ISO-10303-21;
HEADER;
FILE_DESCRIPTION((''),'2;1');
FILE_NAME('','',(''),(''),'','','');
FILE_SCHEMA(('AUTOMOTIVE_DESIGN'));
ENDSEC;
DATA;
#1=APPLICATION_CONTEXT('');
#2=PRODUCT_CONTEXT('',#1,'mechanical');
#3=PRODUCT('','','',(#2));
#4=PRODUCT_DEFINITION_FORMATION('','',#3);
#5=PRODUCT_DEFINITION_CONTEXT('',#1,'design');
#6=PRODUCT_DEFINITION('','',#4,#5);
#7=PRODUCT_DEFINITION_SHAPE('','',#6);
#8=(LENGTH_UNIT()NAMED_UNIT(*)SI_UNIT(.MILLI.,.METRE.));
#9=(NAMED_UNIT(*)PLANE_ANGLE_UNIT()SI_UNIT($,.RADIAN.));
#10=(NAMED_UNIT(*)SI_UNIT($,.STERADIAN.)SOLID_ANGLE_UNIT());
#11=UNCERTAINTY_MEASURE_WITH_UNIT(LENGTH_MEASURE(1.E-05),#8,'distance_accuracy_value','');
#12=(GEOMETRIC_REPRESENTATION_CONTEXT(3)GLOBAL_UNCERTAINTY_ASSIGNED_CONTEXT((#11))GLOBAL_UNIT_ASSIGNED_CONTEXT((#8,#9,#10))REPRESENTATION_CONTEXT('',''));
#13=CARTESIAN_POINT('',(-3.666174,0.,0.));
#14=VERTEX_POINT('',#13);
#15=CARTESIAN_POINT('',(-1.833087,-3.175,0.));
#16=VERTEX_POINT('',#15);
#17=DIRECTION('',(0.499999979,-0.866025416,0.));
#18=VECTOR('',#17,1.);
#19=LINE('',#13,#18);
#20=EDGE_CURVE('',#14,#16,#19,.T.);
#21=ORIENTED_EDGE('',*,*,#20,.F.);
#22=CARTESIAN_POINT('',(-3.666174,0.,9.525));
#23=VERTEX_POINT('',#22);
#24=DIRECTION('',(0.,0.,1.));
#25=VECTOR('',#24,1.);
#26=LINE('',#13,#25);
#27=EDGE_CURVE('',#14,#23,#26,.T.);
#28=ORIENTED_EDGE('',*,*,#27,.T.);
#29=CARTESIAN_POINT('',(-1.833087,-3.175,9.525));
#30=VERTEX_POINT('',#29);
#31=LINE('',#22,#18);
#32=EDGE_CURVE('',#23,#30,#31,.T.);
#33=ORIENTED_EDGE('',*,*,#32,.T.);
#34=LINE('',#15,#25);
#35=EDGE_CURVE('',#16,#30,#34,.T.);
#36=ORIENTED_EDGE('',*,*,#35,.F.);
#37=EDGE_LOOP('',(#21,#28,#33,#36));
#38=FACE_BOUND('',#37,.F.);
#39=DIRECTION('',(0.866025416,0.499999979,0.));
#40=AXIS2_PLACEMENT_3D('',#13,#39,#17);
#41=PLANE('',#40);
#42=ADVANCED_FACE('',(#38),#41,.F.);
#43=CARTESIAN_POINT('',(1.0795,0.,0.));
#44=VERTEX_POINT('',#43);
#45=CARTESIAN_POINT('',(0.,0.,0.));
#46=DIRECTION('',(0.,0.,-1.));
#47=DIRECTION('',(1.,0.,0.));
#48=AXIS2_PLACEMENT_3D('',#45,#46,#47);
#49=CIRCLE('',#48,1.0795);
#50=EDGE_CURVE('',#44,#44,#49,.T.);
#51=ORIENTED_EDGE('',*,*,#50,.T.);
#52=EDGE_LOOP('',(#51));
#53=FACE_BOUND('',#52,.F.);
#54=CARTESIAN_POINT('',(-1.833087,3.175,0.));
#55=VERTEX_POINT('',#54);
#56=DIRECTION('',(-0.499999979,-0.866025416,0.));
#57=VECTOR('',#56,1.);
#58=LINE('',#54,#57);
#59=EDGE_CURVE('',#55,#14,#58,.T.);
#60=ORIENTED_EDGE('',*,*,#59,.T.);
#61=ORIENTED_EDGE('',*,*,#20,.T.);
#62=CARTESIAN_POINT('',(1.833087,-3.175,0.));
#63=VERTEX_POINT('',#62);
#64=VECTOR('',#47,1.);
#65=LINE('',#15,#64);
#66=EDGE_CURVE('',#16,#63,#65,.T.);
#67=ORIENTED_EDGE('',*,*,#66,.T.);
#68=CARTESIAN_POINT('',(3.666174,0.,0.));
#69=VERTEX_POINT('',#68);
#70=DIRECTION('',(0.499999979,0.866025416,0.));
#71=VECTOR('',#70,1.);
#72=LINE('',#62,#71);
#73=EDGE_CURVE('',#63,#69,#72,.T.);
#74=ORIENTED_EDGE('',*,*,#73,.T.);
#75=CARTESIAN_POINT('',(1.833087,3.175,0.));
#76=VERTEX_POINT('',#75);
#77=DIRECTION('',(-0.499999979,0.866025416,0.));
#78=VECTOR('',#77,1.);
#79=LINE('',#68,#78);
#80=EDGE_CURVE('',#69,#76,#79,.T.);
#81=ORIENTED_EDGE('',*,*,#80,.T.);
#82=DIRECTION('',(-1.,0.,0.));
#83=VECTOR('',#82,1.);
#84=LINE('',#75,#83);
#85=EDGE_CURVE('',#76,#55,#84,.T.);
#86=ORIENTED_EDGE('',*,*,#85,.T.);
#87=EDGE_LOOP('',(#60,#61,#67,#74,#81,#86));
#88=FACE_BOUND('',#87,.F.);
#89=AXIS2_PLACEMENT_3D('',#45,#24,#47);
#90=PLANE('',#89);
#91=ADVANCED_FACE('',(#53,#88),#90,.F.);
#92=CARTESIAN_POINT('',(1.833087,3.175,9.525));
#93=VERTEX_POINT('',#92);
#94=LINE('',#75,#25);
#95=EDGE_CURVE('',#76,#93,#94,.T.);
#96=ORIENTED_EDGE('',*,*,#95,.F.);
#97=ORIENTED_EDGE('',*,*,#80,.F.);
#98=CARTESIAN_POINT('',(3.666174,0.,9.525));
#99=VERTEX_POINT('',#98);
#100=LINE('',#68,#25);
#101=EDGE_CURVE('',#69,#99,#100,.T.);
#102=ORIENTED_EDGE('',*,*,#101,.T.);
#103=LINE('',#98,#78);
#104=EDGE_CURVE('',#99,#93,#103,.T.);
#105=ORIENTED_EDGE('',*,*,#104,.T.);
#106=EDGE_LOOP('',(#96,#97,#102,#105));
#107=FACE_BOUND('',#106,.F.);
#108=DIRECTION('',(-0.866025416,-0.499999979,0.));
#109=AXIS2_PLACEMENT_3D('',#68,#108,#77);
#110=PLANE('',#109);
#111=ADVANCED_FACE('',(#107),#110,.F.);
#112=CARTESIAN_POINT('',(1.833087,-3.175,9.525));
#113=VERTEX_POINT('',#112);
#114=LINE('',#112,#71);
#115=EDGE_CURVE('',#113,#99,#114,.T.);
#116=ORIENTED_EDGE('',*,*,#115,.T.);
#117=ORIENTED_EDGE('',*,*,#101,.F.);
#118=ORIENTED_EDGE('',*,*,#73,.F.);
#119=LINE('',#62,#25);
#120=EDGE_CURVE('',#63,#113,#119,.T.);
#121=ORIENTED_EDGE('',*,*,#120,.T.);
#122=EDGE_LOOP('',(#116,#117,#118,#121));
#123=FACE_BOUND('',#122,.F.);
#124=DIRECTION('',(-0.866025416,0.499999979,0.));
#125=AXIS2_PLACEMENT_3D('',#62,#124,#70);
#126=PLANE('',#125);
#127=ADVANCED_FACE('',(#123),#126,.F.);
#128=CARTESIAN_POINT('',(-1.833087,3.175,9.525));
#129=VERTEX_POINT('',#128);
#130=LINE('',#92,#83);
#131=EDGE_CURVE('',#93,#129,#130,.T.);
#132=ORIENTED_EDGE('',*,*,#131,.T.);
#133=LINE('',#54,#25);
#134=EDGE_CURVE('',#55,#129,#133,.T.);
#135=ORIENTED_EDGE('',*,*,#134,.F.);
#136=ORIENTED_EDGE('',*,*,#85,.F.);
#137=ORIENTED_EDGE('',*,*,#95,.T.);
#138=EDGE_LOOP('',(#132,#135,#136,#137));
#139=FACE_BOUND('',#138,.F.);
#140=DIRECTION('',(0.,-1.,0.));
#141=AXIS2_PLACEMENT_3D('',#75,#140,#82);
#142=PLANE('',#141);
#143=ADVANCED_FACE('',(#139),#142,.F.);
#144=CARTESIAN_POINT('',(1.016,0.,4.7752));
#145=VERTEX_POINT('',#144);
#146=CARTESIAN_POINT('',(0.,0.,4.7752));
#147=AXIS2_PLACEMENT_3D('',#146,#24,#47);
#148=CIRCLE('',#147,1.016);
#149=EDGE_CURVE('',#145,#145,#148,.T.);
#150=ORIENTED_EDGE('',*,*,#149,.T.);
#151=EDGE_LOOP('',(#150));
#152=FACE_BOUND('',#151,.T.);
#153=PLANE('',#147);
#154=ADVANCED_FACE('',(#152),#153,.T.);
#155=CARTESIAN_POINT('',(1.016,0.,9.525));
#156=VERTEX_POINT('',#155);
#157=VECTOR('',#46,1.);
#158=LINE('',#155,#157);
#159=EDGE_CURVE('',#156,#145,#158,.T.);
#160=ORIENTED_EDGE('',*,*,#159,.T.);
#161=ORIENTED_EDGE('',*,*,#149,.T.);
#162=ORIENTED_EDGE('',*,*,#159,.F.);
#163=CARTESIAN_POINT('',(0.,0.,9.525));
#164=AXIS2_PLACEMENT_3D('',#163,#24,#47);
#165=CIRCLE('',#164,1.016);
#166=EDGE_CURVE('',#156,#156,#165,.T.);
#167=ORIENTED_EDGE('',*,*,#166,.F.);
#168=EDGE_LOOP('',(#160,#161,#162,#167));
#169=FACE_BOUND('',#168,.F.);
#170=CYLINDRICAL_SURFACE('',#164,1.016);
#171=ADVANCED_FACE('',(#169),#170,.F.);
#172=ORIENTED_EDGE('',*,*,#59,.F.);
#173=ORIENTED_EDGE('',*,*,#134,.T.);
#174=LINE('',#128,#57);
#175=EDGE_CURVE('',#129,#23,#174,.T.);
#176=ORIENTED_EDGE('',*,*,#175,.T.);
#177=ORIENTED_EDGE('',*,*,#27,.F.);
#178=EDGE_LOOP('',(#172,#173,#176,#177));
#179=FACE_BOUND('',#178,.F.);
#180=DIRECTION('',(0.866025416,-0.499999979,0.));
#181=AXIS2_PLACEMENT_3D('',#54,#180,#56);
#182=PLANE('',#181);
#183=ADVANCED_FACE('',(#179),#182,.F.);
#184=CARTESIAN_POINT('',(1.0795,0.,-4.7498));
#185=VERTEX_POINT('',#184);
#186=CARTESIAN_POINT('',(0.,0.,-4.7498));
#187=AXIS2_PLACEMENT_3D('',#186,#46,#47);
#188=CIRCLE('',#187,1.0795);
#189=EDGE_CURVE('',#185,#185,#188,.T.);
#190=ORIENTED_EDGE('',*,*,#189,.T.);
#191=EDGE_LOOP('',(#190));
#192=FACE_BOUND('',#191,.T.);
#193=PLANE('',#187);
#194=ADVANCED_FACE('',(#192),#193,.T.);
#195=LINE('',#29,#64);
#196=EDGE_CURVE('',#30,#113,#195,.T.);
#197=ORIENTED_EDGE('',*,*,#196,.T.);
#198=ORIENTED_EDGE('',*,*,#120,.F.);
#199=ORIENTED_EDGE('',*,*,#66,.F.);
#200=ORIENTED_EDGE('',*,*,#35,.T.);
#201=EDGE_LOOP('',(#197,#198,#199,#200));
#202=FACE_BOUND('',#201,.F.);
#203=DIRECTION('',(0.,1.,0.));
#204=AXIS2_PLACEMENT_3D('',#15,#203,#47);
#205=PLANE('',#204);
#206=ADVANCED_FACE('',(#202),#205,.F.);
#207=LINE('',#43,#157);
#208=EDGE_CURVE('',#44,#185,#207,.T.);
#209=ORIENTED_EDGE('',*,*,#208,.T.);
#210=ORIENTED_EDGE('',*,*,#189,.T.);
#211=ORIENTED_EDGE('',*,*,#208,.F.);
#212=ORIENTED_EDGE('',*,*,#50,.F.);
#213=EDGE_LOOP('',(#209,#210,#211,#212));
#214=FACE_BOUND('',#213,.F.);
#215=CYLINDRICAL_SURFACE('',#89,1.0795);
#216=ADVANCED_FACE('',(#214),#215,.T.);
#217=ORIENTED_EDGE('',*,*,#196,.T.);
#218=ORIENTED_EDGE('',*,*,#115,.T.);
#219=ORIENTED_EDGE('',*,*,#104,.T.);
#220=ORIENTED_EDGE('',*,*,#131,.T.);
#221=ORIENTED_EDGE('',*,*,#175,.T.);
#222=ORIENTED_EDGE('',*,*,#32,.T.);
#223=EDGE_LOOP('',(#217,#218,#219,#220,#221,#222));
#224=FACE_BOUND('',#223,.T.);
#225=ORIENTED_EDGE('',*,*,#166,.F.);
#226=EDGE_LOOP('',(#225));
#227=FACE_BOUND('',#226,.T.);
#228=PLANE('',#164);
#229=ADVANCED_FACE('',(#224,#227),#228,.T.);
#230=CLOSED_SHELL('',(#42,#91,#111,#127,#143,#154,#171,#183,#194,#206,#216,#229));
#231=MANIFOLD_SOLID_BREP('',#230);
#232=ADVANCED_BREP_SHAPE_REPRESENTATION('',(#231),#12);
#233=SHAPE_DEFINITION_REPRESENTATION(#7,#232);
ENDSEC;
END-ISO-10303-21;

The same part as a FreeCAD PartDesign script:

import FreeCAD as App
import Part
import Sketcher
from FreeCAD import Vector
Q = App.Units.Quantity

doc = App.newDocument("Part")
body = doc.addObject("PartDesign::Body", "Body")

# Sketch on XY plane
sketch1 = body.newObject("Sketcher::SketchObject", "Sketch")
sketch1.AttachmentSupport = (doc.getObject("XY_Plane"), [""])
sketch1.MapMode = "FlatFace"
sketch1.addGeometry([
    Part.LineSegment(Vector(1.833087, -3.175, 0), Vector(3.666174, 0, 0)),  # 0
    Part.LineSegment(Vector(3.666174, 0, 0), Vector(1.833087, 3.175, 0)),  # 1
    Part.LineSegment(Vector(1.833087, 3.175, 0), Vector(-1.833087, 3.175, 0)),  # 2
    Part.LineSegment(Vector(-1.833087, 3.175, 0), Vector(-3.666174, 0, 0)),  # 3
    Part.LineSegment(Vector(-3.666174, 0, 0), Vector(-1.833087, -3.175, 0)),  # 4
    Part.LineSegment(Vector(-1.833087, -3.175, 0), Vector(1.833087, -3.175, 0)),  # 5
], False)
sketch1.addConstraint([
    Sketcher.Constraint("Coincident", 0, 2, 1, 1),
    Sketcher.Constraint("Coincident", 1, 2, 2, 1),
    Sketcher.Constraint("Coincident", 2, 2, 3, 1),
    Sketcher.Constraint("Coincident", 3, 2, 4, 1),
    Sketcher.Constraint("Coincident", 4, 2, 5, 1),
    Sketcher.Constraint("Coincident", 5, 2, 0, 1),
    Sketcher.Constraint("Horizontal", 2),
    Sketcher.Constraint("Horizontal", 5),
    Sketcher.Constraint("Symmetric", 0, 2, 3, 2, -1, 1),
    Sketcher.Constraint("Symmetric", 1, 2, 4, 2, -1, 1),
    Sketcher.Constraint("PointOnObject", 0, 2, -1),
    Sketcher.Constraint("Parallel", 0, 3),
    Sketcher.Constraint("Vertical", 2, 2, 4, 2),
    Sketcher.Constraint("Angle", 0, Q("60.000001 deg")),
    Sketcher.Constraint("DistanceY", 4, 2, 2, 2, Q("0.25 in")),
    Sketcher.Constraint("DistanceX", 2, 2, 2, 1, Q("3.666174 mm")),
])
pad1 = body.newObject("PartDesign::Pad", "Pad")
pad1.Profile = sketch1
pad1.Length = Q("0.375 in")

# Sketch on XY plane
sketch2 = body.newObject("Sketcher::SketchObject", "Sketch001")
sketch2.AttachmentSupport = (doc.getObject("XY_Plane"), [""])
sketch2.MapMode = "FlatFace"
sketch2.addGeometry(Part.Circle(Vector(0, 0, 0), Vector(0, 0, 1), 1.0795), False)
sketch2.addConstraint([
    Sketcher.Constraint("Coincident", 0, 3, -1, 1),
    Sketcher.Constraint("Diameter", 0, Q("0.085 in")),
])
pad2 = body.newObject("PartDesign::Pad", "Pad001")
pad2.Profile = sketch2
pad2.Length = Q("0.187 in")
pad2.Reversed = True

# Sketch on XY plane
sketch3 = body.newObject("Sketcher::SketchObject", "Sketch002")
sketch3.AttachmentSupport = (doc.getObject("XY_Plane"), [""])
sketch3.MapMode = "FlatFace"
sketch3.AttachmentOffset = App.Placement(Vector(0, 0, 0.375 * 25.4), App.Rotation())
sketch3.addGeometry(Part.Circle(Vector(0, 0, 0), Vector(0, 0, 1), 1.016), False)
sketch3.addConstraint([
    Sketcher.Constraint("Coincident", 0, 3, -1, 1),
    Sketcher.Constraint("Diameter", 0, Q("0.08 in")),
])
pocket1 = body.newObject("PartDesign::Pocket", "Pocket")
pocket1.Profile = sketch3
pocket1.Length = Q("0.187 in")

doc.recompute()
